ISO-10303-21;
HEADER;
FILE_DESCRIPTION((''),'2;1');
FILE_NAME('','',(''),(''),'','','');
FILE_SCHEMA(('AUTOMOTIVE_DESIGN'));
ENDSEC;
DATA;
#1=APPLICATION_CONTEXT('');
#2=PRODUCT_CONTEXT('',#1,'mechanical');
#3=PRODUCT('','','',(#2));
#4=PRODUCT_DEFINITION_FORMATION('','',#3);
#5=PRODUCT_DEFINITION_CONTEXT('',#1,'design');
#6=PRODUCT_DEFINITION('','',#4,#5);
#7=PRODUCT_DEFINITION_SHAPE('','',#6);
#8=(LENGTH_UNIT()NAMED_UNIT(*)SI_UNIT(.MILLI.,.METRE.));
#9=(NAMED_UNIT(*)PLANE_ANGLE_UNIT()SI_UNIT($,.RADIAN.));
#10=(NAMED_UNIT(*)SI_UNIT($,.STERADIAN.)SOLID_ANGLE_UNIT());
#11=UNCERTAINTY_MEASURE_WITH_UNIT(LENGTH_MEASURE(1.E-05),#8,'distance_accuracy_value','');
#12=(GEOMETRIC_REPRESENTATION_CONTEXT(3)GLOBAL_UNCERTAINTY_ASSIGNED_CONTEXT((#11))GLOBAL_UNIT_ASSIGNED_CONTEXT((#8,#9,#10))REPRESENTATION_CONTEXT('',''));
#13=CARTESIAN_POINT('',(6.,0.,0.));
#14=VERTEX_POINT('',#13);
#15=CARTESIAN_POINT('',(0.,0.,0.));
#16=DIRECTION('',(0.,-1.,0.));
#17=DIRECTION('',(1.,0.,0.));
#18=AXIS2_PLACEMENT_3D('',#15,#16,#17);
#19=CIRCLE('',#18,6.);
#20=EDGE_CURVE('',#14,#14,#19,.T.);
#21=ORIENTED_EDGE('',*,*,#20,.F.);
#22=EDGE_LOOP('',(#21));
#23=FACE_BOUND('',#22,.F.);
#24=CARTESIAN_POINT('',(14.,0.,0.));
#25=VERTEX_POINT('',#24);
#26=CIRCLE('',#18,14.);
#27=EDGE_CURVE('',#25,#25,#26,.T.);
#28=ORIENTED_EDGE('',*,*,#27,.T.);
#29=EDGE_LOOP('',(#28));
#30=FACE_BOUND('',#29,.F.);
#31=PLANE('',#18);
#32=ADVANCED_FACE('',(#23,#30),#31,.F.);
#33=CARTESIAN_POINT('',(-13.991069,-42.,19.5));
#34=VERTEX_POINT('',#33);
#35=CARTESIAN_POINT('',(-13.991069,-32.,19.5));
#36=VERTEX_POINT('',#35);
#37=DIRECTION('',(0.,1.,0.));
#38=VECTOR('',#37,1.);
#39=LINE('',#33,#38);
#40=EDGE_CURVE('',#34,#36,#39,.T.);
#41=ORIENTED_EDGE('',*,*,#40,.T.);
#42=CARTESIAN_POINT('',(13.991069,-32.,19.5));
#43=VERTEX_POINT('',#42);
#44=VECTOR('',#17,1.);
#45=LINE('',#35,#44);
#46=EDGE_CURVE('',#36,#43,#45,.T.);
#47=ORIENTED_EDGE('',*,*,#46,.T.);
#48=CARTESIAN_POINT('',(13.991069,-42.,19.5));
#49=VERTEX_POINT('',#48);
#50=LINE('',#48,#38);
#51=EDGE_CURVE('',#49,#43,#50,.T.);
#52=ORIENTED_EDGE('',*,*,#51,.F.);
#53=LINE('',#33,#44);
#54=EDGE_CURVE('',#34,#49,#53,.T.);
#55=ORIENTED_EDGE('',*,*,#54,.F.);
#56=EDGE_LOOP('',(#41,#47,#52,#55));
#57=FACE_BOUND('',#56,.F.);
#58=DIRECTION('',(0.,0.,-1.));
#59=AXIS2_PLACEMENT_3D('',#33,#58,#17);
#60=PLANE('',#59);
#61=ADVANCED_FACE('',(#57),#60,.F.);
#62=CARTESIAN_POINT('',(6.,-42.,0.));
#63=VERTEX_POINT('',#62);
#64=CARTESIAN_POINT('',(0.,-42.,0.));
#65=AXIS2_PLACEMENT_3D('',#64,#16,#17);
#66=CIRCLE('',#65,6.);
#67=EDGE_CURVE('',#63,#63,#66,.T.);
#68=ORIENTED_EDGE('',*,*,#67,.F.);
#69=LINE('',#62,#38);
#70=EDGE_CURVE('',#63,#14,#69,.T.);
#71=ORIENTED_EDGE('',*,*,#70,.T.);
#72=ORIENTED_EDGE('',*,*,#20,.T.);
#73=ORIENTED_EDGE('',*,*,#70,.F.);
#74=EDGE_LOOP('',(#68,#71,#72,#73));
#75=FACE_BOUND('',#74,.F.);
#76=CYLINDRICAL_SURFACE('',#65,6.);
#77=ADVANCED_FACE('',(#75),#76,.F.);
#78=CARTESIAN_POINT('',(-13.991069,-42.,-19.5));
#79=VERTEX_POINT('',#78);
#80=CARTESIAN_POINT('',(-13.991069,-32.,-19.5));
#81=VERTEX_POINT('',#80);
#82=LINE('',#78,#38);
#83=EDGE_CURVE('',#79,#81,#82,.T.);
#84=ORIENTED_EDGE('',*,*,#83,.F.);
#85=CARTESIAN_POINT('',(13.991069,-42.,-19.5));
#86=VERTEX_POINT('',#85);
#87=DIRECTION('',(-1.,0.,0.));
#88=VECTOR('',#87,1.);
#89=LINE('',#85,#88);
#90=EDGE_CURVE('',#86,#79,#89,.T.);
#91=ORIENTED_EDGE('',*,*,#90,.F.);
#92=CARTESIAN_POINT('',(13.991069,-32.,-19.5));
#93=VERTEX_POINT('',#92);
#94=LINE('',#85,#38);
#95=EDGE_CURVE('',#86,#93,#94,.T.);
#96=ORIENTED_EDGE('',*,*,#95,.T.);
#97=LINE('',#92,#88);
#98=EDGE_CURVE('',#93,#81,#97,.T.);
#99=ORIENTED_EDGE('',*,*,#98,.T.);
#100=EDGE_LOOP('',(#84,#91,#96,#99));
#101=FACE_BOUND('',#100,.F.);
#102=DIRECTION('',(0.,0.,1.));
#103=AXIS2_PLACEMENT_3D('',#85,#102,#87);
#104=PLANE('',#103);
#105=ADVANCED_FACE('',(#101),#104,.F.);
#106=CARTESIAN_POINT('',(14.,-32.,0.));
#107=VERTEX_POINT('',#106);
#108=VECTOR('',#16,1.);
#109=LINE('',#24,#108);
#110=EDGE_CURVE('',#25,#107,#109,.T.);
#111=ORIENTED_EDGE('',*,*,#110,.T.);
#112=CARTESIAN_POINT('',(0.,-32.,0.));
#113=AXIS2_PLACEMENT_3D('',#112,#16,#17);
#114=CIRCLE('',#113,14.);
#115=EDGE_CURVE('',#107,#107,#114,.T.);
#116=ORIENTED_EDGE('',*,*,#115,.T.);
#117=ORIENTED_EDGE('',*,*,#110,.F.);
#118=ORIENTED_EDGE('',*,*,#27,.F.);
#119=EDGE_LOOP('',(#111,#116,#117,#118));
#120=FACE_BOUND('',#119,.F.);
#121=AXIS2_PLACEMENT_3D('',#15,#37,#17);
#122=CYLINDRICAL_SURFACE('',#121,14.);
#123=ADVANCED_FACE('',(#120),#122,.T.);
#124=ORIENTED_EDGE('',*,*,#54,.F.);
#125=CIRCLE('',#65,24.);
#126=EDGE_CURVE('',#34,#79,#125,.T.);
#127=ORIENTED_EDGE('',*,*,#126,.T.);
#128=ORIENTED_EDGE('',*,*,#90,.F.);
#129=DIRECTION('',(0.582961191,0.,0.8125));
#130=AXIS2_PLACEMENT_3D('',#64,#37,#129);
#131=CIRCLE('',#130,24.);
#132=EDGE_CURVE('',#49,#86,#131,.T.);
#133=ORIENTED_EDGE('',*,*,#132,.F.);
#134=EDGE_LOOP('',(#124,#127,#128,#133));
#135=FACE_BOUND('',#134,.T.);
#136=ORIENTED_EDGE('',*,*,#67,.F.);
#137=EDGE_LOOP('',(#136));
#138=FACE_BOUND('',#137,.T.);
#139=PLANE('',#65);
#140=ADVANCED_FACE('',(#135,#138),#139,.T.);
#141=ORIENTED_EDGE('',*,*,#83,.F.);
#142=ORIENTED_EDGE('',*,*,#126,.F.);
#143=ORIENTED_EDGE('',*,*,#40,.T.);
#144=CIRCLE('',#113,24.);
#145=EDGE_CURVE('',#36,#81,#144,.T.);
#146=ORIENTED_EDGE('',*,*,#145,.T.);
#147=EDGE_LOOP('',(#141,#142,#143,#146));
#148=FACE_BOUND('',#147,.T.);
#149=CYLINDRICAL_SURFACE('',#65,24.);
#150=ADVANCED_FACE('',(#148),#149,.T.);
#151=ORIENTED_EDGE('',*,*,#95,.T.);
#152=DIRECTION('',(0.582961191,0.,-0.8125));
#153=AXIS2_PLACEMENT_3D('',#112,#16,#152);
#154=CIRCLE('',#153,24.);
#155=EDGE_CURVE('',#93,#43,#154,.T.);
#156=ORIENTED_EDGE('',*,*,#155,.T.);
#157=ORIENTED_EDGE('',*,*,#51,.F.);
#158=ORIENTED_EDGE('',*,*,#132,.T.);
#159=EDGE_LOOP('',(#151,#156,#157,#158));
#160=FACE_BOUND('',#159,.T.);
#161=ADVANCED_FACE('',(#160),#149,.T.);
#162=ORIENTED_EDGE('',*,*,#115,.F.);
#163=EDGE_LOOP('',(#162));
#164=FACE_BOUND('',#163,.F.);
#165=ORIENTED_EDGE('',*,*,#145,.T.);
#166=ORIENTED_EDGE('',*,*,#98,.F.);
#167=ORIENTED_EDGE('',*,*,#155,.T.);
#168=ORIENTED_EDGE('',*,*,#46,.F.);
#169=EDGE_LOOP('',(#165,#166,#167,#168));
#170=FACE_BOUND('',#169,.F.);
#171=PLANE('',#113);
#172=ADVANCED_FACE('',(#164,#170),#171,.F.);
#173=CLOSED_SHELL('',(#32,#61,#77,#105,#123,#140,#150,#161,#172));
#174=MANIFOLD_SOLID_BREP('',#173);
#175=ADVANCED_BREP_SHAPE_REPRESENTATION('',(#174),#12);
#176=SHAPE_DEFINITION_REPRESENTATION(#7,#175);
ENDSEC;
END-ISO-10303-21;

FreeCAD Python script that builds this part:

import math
import FreeCAD as App
import Part
import Sketcher

V = App.Vector

doc = App.newDocument("Part")
body = doc.addObject("PartDesign::Body", "Body")

# Sketch on XZ plane
sketch1 = body.newObject("Sketcher::SketchObject", "Sketch")
sketch1.AttachmentSupport = (doc.getObject("XZ_Plane"), [""])
sketch1.MapMode = "FlatFace"
sketch1.addGeometry(Part.Circle(V(0, 0, 0), V(0, 0, 1), 14), False)
sketch1.addConstraint([
    Sketcher.Constraint("Coincident", 0, 3, -1, 1),
    Sketcher.Constraint("Diameter", 0, 28.0),
])
pad1 = body.newObject("PartDesign::Pad", "Pad")
pad1.Profile = sketch1
pad1.Length = 42

# Sketch on XZ plane
sketch2 = body.newObject("Sketcher::SketchObject", "Sketch001")
sketch2.AttachmentSupport = (doc.getObject("XZ_Plane"), [""])
sketch2.MapMode = "FlatFace"
sketch2.AttachmentOffset = App.Placement(V(0, 0, 42), App.Rotation())
sketch2.addGeometry(Part.Circle(V(0, 0, 0), V(0, 0, 1), 6), False)
sketch2.addConstraint([
    Sketcher.Constraint("Coincident", 0, 3, -1, 1),
    Sketcher.Constraint("Diameter", 0, 12.0),
])
pocket1 = body.newObject("PartDesign::Pocket", "Pocket")
pocket1.Profile = sketch2
pocket1.Type = "ThroughAll"

# Sketch on XZ plane
sketch3 = body.newObject("Sketcher::SketchObject", "Sketch002")
sketch3.AttachmentSupport = (doc.getObject("XZ_Plane"), [""])
sketch3.MapMode = "FlatFace"
sketch3.AttachmentOffset = App.Placement(V(0, 0, 42), App.Rotation())
sketch3.addGeometry([
    Part.Circle(V(0, 0, 0), V(0, 0, 1), 24),
    Part.Circle(V(0, 0, 0), V(0, 0, 1), 14),
], False)
sketch3.addConstraint([
    Sketcher.Constraint("Coincident", 0, 3, -1, 1),
    Sketcher.Constraint("Coincident", 1, 3, -1, 1),
    Sketcher.Constraint("Diameter", 0, 48.0),
    Sketcher.Constraint("Diameter", 1, 28.0),
])
pad2 = body.newObject("PartDesign::Pad", "Pad001")
pad2.Profile = sketch3
pad2.Length = 10
pad2.Reversed = True

# Sketch on XZ plane
sketch4 = body.newObject("Sketcher::SketchObject", "Sketch003")
sketch4.AttachmentSupport = (doc.getObject("XZ_Plane"), [""])
sketch4.MapMode = "FlatFace"
sketch4.AttachmentOffset = App.Placement(V(0, 0, 42), App.Rotation())
sketch4.addGeometry([
    Part.ArcOfCircle(Part.Circle(V(0, 0, 0), V(0, 0, 1), 24), math.radians(54.340912), math.radians(125.659088)),
    Part.LineSegment(V(-13.991069, 19.5, 0), V(13.991069, 19.5, 0)),
    Part.LineSegment(V(13.991069, -19.5, 0), V(-13.991069, -19.5, 0)),
    Part.ArcOfCircle(Part.Circle(V(0, 0, 0), V(0, 0, 1), 24), math.radians(-125.659088), math.radians(-54.340912)),
], False)
sketch4.addConstraint([
    Sketcher.Constraint("Coincident", 0, 1, 1, 2),
    Sketcher.Constraint("Coincident", 1, 1, 0, 2),
    Sketcher.Constraint("Coincident", 2, 1, 3, 2),
    Sketcher.Constraint("Coincident", 3, 1, 2, 2),
    Sketcher.Constraint("Horizontal", 1),
    Sketcher.Constraint("Horizontal", 2),
    Sketcher.Constraint("Coincident", 0, 3, -1, 1),
    Sketcher.Constraint("Coincident", 3, 3, -1, 1),
    Sketcher.Constraint("Equal", 0, 3),
    Sketcher.Constraint("Vertical", 0, 1, 2, 1),
    Sketcher.Constraint("Radius", 0, 24.0),
    Sketcher.Constraint("DistanceY", 2, 1, 0, 1, 39.0),
])
pocket2 = body.newObject("PartDesign::Pocket", "Pocket001")
pocket2.Profile = sketch4
pocket2.Type = "ThroughAll"

doc.recompute()
